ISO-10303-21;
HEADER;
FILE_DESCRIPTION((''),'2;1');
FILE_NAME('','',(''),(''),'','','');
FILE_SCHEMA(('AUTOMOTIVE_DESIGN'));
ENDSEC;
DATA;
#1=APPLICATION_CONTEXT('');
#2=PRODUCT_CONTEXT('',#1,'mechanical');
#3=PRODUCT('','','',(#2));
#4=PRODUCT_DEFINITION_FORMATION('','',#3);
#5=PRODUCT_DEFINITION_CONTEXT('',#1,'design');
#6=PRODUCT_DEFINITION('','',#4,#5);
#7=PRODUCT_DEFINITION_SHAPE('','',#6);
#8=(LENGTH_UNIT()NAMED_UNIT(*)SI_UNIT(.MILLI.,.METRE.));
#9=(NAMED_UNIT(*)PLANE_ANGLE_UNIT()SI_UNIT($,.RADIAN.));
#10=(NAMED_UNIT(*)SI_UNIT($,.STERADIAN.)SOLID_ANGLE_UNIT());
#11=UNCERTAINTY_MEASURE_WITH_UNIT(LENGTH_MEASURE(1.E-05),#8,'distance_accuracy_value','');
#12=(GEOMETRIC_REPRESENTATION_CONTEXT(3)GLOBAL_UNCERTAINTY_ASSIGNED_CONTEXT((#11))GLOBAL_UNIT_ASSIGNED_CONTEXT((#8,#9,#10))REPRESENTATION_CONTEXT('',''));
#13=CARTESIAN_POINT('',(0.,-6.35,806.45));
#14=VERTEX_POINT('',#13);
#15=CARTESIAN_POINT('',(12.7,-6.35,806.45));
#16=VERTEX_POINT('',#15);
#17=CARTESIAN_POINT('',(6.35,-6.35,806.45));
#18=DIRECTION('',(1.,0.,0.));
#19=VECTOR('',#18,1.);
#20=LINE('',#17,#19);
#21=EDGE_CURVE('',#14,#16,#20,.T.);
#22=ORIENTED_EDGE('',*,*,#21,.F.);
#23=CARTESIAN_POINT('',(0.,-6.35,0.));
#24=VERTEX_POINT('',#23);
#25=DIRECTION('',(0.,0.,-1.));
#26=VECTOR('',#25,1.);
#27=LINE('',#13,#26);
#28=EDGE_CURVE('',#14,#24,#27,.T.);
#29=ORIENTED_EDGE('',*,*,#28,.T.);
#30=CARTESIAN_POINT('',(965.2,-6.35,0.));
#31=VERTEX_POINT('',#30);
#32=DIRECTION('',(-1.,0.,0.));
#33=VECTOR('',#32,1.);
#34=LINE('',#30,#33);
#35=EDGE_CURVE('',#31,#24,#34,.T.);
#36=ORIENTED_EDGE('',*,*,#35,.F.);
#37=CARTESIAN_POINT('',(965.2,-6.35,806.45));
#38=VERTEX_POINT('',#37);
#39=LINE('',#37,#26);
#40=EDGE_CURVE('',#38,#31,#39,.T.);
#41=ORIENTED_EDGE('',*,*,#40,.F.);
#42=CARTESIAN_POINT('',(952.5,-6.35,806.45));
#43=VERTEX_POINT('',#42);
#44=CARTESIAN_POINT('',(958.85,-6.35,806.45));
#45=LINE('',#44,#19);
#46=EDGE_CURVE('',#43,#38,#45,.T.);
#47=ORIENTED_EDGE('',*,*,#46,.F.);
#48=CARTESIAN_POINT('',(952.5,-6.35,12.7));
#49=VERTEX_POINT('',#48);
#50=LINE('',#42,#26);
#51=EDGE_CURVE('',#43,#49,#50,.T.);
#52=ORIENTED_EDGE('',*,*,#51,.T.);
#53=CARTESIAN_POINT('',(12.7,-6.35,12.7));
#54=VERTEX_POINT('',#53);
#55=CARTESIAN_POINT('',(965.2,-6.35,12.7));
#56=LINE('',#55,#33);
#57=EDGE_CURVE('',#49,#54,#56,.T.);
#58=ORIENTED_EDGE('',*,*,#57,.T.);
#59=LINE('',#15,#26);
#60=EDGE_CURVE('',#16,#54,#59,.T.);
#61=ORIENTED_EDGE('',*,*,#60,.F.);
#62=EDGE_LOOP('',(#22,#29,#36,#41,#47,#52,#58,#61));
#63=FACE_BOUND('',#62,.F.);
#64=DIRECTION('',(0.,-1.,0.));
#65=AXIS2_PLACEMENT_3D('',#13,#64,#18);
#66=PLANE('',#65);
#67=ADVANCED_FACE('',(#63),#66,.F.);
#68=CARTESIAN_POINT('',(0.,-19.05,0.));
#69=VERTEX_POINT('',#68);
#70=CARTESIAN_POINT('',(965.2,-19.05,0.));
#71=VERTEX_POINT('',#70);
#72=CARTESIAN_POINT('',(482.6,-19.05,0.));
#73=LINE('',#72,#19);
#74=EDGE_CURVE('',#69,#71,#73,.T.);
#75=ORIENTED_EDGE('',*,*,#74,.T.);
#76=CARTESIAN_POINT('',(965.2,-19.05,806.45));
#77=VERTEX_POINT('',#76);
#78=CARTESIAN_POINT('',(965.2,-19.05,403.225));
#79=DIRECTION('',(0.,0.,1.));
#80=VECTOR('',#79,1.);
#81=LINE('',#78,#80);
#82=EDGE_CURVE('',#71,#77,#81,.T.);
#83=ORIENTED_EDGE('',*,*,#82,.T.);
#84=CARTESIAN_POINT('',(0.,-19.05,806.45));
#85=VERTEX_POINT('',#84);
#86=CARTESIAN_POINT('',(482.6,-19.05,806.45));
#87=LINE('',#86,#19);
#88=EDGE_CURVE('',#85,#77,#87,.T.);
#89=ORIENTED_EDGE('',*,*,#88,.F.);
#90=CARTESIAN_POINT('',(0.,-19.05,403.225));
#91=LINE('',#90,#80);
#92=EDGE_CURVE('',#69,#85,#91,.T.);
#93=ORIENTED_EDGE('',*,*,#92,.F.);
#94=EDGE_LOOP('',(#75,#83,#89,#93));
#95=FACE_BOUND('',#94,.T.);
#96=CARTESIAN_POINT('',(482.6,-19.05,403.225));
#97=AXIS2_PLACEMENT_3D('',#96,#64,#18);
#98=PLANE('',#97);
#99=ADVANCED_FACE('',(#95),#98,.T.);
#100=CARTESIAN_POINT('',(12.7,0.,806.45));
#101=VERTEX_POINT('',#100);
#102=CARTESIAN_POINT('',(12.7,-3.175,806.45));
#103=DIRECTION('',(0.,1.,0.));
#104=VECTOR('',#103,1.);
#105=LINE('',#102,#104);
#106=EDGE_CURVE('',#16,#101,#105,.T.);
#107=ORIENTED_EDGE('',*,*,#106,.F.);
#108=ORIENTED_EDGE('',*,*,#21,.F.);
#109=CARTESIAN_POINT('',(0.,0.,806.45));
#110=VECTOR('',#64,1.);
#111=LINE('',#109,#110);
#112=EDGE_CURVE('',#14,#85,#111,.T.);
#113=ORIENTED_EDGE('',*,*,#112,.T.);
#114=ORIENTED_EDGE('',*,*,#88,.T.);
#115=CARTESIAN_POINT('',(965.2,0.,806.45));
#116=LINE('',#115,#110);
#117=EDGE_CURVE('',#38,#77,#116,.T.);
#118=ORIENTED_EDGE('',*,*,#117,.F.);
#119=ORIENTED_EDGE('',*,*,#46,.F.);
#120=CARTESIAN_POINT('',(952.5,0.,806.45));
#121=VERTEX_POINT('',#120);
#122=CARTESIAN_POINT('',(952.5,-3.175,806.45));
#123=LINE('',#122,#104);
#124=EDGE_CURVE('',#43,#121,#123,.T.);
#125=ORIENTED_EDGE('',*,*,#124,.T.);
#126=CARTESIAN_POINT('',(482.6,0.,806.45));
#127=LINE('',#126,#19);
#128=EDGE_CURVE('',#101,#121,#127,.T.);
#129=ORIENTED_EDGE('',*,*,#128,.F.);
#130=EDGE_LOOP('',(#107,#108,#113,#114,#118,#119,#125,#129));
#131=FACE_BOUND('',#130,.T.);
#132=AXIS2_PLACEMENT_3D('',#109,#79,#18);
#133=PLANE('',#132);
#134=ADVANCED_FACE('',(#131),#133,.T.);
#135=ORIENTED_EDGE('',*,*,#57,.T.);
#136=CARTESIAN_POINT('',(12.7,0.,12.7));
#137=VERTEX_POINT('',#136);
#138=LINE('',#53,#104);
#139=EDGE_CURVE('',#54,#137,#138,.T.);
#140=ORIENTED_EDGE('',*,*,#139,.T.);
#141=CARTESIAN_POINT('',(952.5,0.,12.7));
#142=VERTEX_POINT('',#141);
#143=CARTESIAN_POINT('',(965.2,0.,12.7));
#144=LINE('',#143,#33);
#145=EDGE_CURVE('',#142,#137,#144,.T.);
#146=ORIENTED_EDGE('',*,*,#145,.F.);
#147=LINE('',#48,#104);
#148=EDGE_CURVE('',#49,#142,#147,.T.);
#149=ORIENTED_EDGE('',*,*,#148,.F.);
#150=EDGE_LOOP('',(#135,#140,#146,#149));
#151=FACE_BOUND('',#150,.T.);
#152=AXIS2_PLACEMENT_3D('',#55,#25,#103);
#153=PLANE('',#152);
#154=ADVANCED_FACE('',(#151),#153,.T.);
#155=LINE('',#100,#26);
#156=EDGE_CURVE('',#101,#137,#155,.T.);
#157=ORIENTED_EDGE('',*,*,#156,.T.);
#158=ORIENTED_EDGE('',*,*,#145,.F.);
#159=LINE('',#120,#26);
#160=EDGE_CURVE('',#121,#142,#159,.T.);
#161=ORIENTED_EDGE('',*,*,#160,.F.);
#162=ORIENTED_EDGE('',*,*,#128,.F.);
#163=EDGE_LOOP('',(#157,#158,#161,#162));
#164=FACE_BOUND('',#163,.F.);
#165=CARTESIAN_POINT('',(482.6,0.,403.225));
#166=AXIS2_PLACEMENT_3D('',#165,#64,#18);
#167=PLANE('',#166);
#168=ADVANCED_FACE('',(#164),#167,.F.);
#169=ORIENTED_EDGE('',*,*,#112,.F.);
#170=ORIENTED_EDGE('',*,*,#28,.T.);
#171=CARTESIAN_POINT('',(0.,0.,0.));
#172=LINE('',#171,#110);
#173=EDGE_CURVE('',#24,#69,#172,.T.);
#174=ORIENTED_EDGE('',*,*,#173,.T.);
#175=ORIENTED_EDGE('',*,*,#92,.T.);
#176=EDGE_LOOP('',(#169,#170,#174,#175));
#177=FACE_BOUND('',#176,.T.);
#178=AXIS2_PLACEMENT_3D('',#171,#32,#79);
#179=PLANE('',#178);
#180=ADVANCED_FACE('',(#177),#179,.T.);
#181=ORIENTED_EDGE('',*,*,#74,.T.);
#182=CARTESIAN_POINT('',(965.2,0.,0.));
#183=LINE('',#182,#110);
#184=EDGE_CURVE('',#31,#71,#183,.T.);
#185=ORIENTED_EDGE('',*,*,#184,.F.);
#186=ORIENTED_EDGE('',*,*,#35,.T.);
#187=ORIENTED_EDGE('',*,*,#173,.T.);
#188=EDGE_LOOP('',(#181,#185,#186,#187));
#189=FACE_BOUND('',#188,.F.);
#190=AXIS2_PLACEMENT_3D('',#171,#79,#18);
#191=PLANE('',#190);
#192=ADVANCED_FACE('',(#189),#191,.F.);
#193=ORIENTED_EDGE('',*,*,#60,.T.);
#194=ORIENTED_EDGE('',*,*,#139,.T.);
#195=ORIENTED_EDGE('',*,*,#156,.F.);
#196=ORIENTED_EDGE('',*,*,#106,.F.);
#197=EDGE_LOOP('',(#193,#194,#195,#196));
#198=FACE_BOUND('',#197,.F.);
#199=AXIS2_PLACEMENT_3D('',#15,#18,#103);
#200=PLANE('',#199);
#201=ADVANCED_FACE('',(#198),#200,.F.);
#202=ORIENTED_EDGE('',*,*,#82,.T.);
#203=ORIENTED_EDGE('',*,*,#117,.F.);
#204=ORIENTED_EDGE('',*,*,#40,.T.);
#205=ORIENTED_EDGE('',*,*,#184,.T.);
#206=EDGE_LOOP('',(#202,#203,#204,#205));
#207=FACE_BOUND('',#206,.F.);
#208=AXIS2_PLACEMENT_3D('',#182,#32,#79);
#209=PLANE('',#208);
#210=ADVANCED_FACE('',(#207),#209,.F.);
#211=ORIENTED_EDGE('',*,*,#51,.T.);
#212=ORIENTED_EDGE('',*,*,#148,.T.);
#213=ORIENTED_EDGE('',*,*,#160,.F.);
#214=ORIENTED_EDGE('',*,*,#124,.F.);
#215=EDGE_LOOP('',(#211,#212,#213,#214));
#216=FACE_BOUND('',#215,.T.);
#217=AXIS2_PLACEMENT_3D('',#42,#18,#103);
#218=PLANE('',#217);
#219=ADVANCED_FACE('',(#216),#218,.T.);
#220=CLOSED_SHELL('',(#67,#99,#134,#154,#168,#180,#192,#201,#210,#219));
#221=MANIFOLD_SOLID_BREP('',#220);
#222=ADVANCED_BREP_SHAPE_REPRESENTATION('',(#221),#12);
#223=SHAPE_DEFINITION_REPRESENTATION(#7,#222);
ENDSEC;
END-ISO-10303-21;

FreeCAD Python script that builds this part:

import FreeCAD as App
import Part
import Sketcher
Q = App.Units.Quantity

doc = App.newDocument("Part")
body = doc.addObject("PartDesign::Body", "Body")

sketch1 = body.newObject("Sketcher::SketchObject", "Sketch")
sketch1.AttachmentSupport = (doc.getObject("XZ_Plane"), [""])
sketch1.MapMode = "FlatFace"
sketch1.addGeometry([
    Part.LineSegment(App.Vector(0, 806, 0), App.Vector(0, 0, 0)),
    Part.LineSegment(App.Vector(0, 0, 0), App.Vector(965, 0, 0)),
    Part.LineSegment(App.Vector(965, 0, 0), App.Vector(965, 806, 0)),
    Part.LineSegment(App.Vector(965, 806, 0), App.Vector(0, 806, 0)),
], False)
sketch1.addConstraint([
    Sketcher.Constraint("Coincident", 0, 2, 1, 1),
    Sketcher.Constraint("Coincident", 1, 2, 2, 1),
    Sketcher.Constraint("Coincident", 2, 2, 3, 1),
    Sketcher.Constraint("Coincident", 3, 2, 0, 1),
    Sketcher.Constraint("Vertical", 0),
    Sketcher.Constraint("Horizontal", 1),
    Sketcher.Constraint("Vertical", 2),
    Sketcher.Constraint("Horizontal", 3),
    Sketcher.Constraint("Coincident", 0, 2, -1, 1),
    Sketcher.Constraint("DistanceX", 1, 1, 1, 2, Q("38 in")),
    Sketcher.Constraint("DistanceY", 0, 2, 0, 1, Q("31.75 in")),
])
pad1 = body.newObject("PartDesign::Pad", "Pad")
pad1.Profile = sketch1
pad1.Length = Q("0.75 in")

sketch2 = body.newObject("Sketcher::SketchObject", "Sketch001")
sketch2.AttachmentSupport = (doc.getObject("XY_Plane"), [""])
sketch2.MapMode = "FlatFace"
sketch2.AttachmentOffset = App.Placement(App.Vector(0, 0, 31.75 * 25.4), App.Rotation())
sketch2.addGeometry([
    Part.LineSegment(App.Vector(0, 0, 0), App.Vector(0, -6, 0)),
    Part.LineSegment(App.Vector(0, -6, 0), App.Vector(13, -6, 0)),
    Part.LineSegment(App.Vector(13, -6, 0), App.Vector(13, 0, 0)),
    Part.LineSegment(App.Vector(13, 0, 0), App.Vector(0, 0, 0)),
    Part.LineSegment(App.Vector(952, 0, 0), App.Vector(952, -6, 0)),
    Part.LineSegment(App.Vector(952, -6, 0), App.Vector(965, -6, 0)),
    Part.LineSegment(App.Vector(965, -6, 0), App.Vector(965, 0, 0)),
    Part.LineSegment(App.Vector(965, 0, 0), App.Vector(952, 0, 0)),
], False)
sketch2.addConstraint([
    Sketcher.Constraint("Coincident", 0, 2, 1, 1),
    Sketcher.Constraint("Coincident", 1, 2, 2, 1),
    Sketcher.Constraint("Coincident", 2, 2, 3, 1),
    Sketcher.Constraint("Coincident", 3, 2, 0, 1),
    Sketcher.Constraint("Coincident", 4, 2, 5, 1),
    Sketcher.Constraint("Coincident", 5, 2, 6, 1),
    Sketcher.Constraint("Coincident", 6, 2, 7, 1),
    Sketcher.Constraint("Coincident", 7, 2, 4, 1),
    Sketcher.Constraint("Vertical", 0),
    Sketcher.Constraint("Horizontal", 1),
    Sketcher.Constraint("Vertical", 2),
    Sketcher.Constraint("Horizontal", 3),
    Sketcher.Constraint("Vertical", 4),
    Sketcher.Constraint("Horizontal", 5),
    Sketcher.Constraint("Vertical", 6),
    Sketcher.Constraint("Horizontal", 7),
    Sketcher.Constraint("Coincident", 3, 2, -1, 1),
    Sketcher.Constraint("PointOnObject", 6, 2, -1),
    Sketcher.Constraint("Horizontal", 1, 2, 4, 2),
    Sketcher.Constraint("Equal", 3, 5),
    Sketcher.Constraint("DistanceX", 1, 1, 1, 2, Q("0.5 in")),
    Sketcher.Constraint("DistanceX", -1, 1, 5, 2, Q("38 in")),
    Sketcher.Constraint("DistanceY", 0, 2, 0, 1, Q("0.25 in")),
])
pocket1 = body.newObject("PartDesign::Pocket", "Pocket")
pocket1.Profile = sketch2
pocket1.Type = "ThroughAll"

sketch3 = body.newObject("Sketcher::SketchObject", "Sketch002")
sketch3.AttachmentSupport = (doc.getObject("YZ_Plane"), [""])
sketch3.MapMode = "FlatFace"
sketch3.AttachmentOffset = App.Placement(App.Vector(0, 0, 38 * 25.4), App.Rotation())
sketch3.addGeometry([
    Part.LineSegment(App.Vector(-6, 13, 0), App.Vector(-6, 0, 0)),
    Part.LineSegment(App.Vector(-6, 0, 0), App.Vector(0, 0, 0)),
    Part.LineSegment(App.Vector(0, 0, 0), App.Vector(0, 13, 0)),
    Part.LineSegment(App.Vector(0, 13, 0), App.Vector(-6, 13, 0)),
], False)
sketch3.addConstraint([
    Sketcher.Constraint("Coincident", 0, 2, 1, 1),
    Sketcher.Constraint("Coincident", 1, 2, 2, 1),
    Sketcher.Constraint("Coincident", 2, 2, 3, 1),
    Sketcher.Constraint("Coincident", 3, 2, 0, 1),
    Sketcher.Constraint("Vertical", 0),
    Sketcher.Constraint("Horizontal", 1),
    Sketcher.Constraint("Vertical", 2),
    Sketcher.Constraint("Horizontal", 3),
    Sketcher.Constraint("Coincident", 1, 2, -1, 1),
    Sketcher.Constraint("DistanceY", 0, 2, 0, 1, Q("0.5 in")),
    Sketcher.Constraint("DistanceX", 1, 1, 1, 2, Q("0.25 in")),
])
pocket2 = body.newObject("PartDesign::Pocket", "Pocket001")
pocket2.Profile = sketch3
pocket2.Type = "ThroughAll"

doc.recompute()
